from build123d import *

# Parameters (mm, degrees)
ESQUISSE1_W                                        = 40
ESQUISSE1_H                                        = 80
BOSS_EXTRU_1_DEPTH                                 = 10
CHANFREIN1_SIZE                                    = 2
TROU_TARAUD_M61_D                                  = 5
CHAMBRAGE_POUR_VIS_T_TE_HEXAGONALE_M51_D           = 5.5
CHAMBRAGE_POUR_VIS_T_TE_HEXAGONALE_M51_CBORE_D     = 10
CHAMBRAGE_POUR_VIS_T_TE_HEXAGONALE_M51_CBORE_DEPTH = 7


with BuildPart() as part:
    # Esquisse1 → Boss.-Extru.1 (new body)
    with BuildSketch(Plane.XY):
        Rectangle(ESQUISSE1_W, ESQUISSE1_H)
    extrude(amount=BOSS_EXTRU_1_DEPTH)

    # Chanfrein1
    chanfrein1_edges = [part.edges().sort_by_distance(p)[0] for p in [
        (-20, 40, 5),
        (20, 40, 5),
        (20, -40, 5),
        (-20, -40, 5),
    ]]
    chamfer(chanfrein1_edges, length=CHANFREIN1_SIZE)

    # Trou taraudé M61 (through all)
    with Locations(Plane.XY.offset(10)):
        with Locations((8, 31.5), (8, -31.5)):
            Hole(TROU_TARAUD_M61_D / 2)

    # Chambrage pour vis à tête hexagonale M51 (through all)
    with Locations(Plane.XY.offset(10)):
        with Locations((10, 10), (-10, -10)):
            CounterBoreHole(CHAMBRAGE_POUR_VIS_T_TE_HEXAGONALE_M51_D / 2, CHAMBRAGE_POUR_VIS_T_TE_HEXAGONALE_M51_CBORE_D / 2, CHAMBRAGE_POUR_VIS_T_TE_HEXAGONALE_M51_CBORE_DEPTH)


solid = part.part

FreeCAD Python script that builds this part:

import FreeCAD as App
import Part
import Sketcher
Q = App.Units.Quantity


def edges_at(feature, points):
    """Names of the edges that pass closest to the given points."""
    edges = feature.Shape.Edges
    near = lambda p: min(range(len(edges)), key=lambda i: edges[i].distToShape(Part.Vertex(*p))[0])
    return sorted({f"Edge{near(p) + 1}" for p in points})


def add_polygon(sketch, points):
    """Adds a closed chain of lines whose ends are joined by coincident constraints."""
    first, n = sketch.GeometryCount, len(points)
    for a, b in zip(points, points[1:] + points[:1]):
        sketch.addGeometry(Part.LineSegment(App.Vector(*a, 0), App.Vector(*b, 0)), False)
    for i in range(n):
        sketch.addConstraint(Sketcher.Constraint("Coincident", first + i, 2, first + (i + 1) % n, 1))

doc = App.newDocument("Part")
body = doc.addObject("PartDesign::Body", "Body")

# Sketch on XY plane
sketch1 = doc.addObject("Sketcher::SketchObject", "Sketch")
body.addObject(sketch1)
sketch1.AttachmentSupport = (doc.XY_Plane, [""])
sketch1.MapMode = "FlatFace"
add_polygon(sketch1, [(-20, 40), (-20, -40), (20, -40), (20, 40)])  # lines 0-3
sketch1.addConstraint([
    Sketcher.Constraint("Vertical", 0),
    Sketcher.Constraint("Horizontal", 1),
    Sketcher.Constraint("Vertical", 2),
    Sketcher.Constraint("Horizontal", 3),
    Sketcher.Constraint("Symmetric", 0, 2, 2, 2, -1, 1),
    Sketcher.Constraint("DistanceX", 1, 1, 1, 2, Q("40 mm")),
    Sketcher.Constraint("DistanceY", 0, 2, 0, 1, Q("80 mm")),
])
pad1 = doc.addObject("PartDesign::Pad", "Pad")
body.addObject(pad1)
pad1.Profile = sketch1
pad1.Length = 10
doc.recompute()

chamfer = doc.addObject("PartDesign::Chamfer", "Chamfer")
body.addObject(chamfer)
chamfer.Base = (pad1, edges_at(pad1, [
    (-20, 40, 5),
    (20, 40, 5),
    (20, -40, 5),
    (-20, -40, 5),
]))
chamfer.Size = 2

# Sketch on XY plane
sketch2 = doc.addObject("Sketcher::SketchObject", "Sketch001")
body.addObject(sketch2)
sketch2.AttachmentSupport = (doc.XY_Plane, [""])
sketch2.MapMode = "FlatFace"
sketch2.AttachmentOffset = App.Placement(App.Vector(0, 0, 10), App.Rotation())
sketch2.addGeometry([
    Part.Circle(App.Vector(8, 31.5, 0), App.Vector(0, 0, 1), 2.5),
    Part.Circle(App.Vector(8, -31.5, 0), App.Vector(0, 0, 1), 2.5),
], False)
sketch2.addConstraint([
    Sketcher.Constraint("Equal", 0, 1),
    Sketcher.Constraint("Symmetric", 0, 3, 1, 3, -1),
    Sketcher.Constraint("Diameter", 0, Q("5 mm")),
    Sketcher.Constraint("DistanceX", -1, 1, 0, 3, Q("8 mm")),
    Sketcher.Constraint("DistanceY", 1, 3, 0, 3, Q("63 mm")),
])
doc.recompute()
hole = doc.addObject("PartDesign::Hole", "Hole")
body.addObject(hole)
hole.Profile = sketch2
hole.ThreadType = "None"
hole.Diameter = 5
hole.DepthType = "ThroughAll"

# Sketch on XY plane
sketch3 = doc.addObject("Sketcher::SketchObject", "Sketch002")
body.addObject(sketch3)
sketch3.AttachmentSupport = (doc.XY_Plane, [""])
sketch3.MapMode = "FlatFace"
sketch3.AttachmentOffset = App.Placement(App.Vector(0, 0, 10), App.Rotation())
sketch3.addGeometry([
    Part.Circle(App.Vector(10, 10, 0), App.Vector(0, 0, 1), 2.8),
    Part.Circle(App.Vector(-10, -10, 0), App.Vector(0, 0, 1), 2.8),
], False)
sketch3.addConstraint([
    Sketcher.Constraint("Equal", 0, 1),
    Sketcher.Constraint("Symmetric", 0, 3, 1, 3, -1, 1),
    Sketcher.Constraint("Diameter", 0, Q("5.5 mm")),
    Sketcher.Constraint("DistanceX", -1, 1, 0, 3, Q("10 mm")),
    Sketcher.Constraint("DistanceY", -1, 1, 0, 3, Q("10 mm")),
])
doc.recompute()
hole2 = doc.addObject("PartDesign::Hole", "Hole001")
body.addObject(hole2)
hole2.Profile = sketch3
hole2.ThreadType = "None"
hole2.Diameter = 5.5
hole2.DepthType = "ThroughAll"
hole2.HoleCutType = "Counterbore"
hole2.HoleCutDiameter = 10
hole2.HoleCutDepth = 7

doc.recompute()
